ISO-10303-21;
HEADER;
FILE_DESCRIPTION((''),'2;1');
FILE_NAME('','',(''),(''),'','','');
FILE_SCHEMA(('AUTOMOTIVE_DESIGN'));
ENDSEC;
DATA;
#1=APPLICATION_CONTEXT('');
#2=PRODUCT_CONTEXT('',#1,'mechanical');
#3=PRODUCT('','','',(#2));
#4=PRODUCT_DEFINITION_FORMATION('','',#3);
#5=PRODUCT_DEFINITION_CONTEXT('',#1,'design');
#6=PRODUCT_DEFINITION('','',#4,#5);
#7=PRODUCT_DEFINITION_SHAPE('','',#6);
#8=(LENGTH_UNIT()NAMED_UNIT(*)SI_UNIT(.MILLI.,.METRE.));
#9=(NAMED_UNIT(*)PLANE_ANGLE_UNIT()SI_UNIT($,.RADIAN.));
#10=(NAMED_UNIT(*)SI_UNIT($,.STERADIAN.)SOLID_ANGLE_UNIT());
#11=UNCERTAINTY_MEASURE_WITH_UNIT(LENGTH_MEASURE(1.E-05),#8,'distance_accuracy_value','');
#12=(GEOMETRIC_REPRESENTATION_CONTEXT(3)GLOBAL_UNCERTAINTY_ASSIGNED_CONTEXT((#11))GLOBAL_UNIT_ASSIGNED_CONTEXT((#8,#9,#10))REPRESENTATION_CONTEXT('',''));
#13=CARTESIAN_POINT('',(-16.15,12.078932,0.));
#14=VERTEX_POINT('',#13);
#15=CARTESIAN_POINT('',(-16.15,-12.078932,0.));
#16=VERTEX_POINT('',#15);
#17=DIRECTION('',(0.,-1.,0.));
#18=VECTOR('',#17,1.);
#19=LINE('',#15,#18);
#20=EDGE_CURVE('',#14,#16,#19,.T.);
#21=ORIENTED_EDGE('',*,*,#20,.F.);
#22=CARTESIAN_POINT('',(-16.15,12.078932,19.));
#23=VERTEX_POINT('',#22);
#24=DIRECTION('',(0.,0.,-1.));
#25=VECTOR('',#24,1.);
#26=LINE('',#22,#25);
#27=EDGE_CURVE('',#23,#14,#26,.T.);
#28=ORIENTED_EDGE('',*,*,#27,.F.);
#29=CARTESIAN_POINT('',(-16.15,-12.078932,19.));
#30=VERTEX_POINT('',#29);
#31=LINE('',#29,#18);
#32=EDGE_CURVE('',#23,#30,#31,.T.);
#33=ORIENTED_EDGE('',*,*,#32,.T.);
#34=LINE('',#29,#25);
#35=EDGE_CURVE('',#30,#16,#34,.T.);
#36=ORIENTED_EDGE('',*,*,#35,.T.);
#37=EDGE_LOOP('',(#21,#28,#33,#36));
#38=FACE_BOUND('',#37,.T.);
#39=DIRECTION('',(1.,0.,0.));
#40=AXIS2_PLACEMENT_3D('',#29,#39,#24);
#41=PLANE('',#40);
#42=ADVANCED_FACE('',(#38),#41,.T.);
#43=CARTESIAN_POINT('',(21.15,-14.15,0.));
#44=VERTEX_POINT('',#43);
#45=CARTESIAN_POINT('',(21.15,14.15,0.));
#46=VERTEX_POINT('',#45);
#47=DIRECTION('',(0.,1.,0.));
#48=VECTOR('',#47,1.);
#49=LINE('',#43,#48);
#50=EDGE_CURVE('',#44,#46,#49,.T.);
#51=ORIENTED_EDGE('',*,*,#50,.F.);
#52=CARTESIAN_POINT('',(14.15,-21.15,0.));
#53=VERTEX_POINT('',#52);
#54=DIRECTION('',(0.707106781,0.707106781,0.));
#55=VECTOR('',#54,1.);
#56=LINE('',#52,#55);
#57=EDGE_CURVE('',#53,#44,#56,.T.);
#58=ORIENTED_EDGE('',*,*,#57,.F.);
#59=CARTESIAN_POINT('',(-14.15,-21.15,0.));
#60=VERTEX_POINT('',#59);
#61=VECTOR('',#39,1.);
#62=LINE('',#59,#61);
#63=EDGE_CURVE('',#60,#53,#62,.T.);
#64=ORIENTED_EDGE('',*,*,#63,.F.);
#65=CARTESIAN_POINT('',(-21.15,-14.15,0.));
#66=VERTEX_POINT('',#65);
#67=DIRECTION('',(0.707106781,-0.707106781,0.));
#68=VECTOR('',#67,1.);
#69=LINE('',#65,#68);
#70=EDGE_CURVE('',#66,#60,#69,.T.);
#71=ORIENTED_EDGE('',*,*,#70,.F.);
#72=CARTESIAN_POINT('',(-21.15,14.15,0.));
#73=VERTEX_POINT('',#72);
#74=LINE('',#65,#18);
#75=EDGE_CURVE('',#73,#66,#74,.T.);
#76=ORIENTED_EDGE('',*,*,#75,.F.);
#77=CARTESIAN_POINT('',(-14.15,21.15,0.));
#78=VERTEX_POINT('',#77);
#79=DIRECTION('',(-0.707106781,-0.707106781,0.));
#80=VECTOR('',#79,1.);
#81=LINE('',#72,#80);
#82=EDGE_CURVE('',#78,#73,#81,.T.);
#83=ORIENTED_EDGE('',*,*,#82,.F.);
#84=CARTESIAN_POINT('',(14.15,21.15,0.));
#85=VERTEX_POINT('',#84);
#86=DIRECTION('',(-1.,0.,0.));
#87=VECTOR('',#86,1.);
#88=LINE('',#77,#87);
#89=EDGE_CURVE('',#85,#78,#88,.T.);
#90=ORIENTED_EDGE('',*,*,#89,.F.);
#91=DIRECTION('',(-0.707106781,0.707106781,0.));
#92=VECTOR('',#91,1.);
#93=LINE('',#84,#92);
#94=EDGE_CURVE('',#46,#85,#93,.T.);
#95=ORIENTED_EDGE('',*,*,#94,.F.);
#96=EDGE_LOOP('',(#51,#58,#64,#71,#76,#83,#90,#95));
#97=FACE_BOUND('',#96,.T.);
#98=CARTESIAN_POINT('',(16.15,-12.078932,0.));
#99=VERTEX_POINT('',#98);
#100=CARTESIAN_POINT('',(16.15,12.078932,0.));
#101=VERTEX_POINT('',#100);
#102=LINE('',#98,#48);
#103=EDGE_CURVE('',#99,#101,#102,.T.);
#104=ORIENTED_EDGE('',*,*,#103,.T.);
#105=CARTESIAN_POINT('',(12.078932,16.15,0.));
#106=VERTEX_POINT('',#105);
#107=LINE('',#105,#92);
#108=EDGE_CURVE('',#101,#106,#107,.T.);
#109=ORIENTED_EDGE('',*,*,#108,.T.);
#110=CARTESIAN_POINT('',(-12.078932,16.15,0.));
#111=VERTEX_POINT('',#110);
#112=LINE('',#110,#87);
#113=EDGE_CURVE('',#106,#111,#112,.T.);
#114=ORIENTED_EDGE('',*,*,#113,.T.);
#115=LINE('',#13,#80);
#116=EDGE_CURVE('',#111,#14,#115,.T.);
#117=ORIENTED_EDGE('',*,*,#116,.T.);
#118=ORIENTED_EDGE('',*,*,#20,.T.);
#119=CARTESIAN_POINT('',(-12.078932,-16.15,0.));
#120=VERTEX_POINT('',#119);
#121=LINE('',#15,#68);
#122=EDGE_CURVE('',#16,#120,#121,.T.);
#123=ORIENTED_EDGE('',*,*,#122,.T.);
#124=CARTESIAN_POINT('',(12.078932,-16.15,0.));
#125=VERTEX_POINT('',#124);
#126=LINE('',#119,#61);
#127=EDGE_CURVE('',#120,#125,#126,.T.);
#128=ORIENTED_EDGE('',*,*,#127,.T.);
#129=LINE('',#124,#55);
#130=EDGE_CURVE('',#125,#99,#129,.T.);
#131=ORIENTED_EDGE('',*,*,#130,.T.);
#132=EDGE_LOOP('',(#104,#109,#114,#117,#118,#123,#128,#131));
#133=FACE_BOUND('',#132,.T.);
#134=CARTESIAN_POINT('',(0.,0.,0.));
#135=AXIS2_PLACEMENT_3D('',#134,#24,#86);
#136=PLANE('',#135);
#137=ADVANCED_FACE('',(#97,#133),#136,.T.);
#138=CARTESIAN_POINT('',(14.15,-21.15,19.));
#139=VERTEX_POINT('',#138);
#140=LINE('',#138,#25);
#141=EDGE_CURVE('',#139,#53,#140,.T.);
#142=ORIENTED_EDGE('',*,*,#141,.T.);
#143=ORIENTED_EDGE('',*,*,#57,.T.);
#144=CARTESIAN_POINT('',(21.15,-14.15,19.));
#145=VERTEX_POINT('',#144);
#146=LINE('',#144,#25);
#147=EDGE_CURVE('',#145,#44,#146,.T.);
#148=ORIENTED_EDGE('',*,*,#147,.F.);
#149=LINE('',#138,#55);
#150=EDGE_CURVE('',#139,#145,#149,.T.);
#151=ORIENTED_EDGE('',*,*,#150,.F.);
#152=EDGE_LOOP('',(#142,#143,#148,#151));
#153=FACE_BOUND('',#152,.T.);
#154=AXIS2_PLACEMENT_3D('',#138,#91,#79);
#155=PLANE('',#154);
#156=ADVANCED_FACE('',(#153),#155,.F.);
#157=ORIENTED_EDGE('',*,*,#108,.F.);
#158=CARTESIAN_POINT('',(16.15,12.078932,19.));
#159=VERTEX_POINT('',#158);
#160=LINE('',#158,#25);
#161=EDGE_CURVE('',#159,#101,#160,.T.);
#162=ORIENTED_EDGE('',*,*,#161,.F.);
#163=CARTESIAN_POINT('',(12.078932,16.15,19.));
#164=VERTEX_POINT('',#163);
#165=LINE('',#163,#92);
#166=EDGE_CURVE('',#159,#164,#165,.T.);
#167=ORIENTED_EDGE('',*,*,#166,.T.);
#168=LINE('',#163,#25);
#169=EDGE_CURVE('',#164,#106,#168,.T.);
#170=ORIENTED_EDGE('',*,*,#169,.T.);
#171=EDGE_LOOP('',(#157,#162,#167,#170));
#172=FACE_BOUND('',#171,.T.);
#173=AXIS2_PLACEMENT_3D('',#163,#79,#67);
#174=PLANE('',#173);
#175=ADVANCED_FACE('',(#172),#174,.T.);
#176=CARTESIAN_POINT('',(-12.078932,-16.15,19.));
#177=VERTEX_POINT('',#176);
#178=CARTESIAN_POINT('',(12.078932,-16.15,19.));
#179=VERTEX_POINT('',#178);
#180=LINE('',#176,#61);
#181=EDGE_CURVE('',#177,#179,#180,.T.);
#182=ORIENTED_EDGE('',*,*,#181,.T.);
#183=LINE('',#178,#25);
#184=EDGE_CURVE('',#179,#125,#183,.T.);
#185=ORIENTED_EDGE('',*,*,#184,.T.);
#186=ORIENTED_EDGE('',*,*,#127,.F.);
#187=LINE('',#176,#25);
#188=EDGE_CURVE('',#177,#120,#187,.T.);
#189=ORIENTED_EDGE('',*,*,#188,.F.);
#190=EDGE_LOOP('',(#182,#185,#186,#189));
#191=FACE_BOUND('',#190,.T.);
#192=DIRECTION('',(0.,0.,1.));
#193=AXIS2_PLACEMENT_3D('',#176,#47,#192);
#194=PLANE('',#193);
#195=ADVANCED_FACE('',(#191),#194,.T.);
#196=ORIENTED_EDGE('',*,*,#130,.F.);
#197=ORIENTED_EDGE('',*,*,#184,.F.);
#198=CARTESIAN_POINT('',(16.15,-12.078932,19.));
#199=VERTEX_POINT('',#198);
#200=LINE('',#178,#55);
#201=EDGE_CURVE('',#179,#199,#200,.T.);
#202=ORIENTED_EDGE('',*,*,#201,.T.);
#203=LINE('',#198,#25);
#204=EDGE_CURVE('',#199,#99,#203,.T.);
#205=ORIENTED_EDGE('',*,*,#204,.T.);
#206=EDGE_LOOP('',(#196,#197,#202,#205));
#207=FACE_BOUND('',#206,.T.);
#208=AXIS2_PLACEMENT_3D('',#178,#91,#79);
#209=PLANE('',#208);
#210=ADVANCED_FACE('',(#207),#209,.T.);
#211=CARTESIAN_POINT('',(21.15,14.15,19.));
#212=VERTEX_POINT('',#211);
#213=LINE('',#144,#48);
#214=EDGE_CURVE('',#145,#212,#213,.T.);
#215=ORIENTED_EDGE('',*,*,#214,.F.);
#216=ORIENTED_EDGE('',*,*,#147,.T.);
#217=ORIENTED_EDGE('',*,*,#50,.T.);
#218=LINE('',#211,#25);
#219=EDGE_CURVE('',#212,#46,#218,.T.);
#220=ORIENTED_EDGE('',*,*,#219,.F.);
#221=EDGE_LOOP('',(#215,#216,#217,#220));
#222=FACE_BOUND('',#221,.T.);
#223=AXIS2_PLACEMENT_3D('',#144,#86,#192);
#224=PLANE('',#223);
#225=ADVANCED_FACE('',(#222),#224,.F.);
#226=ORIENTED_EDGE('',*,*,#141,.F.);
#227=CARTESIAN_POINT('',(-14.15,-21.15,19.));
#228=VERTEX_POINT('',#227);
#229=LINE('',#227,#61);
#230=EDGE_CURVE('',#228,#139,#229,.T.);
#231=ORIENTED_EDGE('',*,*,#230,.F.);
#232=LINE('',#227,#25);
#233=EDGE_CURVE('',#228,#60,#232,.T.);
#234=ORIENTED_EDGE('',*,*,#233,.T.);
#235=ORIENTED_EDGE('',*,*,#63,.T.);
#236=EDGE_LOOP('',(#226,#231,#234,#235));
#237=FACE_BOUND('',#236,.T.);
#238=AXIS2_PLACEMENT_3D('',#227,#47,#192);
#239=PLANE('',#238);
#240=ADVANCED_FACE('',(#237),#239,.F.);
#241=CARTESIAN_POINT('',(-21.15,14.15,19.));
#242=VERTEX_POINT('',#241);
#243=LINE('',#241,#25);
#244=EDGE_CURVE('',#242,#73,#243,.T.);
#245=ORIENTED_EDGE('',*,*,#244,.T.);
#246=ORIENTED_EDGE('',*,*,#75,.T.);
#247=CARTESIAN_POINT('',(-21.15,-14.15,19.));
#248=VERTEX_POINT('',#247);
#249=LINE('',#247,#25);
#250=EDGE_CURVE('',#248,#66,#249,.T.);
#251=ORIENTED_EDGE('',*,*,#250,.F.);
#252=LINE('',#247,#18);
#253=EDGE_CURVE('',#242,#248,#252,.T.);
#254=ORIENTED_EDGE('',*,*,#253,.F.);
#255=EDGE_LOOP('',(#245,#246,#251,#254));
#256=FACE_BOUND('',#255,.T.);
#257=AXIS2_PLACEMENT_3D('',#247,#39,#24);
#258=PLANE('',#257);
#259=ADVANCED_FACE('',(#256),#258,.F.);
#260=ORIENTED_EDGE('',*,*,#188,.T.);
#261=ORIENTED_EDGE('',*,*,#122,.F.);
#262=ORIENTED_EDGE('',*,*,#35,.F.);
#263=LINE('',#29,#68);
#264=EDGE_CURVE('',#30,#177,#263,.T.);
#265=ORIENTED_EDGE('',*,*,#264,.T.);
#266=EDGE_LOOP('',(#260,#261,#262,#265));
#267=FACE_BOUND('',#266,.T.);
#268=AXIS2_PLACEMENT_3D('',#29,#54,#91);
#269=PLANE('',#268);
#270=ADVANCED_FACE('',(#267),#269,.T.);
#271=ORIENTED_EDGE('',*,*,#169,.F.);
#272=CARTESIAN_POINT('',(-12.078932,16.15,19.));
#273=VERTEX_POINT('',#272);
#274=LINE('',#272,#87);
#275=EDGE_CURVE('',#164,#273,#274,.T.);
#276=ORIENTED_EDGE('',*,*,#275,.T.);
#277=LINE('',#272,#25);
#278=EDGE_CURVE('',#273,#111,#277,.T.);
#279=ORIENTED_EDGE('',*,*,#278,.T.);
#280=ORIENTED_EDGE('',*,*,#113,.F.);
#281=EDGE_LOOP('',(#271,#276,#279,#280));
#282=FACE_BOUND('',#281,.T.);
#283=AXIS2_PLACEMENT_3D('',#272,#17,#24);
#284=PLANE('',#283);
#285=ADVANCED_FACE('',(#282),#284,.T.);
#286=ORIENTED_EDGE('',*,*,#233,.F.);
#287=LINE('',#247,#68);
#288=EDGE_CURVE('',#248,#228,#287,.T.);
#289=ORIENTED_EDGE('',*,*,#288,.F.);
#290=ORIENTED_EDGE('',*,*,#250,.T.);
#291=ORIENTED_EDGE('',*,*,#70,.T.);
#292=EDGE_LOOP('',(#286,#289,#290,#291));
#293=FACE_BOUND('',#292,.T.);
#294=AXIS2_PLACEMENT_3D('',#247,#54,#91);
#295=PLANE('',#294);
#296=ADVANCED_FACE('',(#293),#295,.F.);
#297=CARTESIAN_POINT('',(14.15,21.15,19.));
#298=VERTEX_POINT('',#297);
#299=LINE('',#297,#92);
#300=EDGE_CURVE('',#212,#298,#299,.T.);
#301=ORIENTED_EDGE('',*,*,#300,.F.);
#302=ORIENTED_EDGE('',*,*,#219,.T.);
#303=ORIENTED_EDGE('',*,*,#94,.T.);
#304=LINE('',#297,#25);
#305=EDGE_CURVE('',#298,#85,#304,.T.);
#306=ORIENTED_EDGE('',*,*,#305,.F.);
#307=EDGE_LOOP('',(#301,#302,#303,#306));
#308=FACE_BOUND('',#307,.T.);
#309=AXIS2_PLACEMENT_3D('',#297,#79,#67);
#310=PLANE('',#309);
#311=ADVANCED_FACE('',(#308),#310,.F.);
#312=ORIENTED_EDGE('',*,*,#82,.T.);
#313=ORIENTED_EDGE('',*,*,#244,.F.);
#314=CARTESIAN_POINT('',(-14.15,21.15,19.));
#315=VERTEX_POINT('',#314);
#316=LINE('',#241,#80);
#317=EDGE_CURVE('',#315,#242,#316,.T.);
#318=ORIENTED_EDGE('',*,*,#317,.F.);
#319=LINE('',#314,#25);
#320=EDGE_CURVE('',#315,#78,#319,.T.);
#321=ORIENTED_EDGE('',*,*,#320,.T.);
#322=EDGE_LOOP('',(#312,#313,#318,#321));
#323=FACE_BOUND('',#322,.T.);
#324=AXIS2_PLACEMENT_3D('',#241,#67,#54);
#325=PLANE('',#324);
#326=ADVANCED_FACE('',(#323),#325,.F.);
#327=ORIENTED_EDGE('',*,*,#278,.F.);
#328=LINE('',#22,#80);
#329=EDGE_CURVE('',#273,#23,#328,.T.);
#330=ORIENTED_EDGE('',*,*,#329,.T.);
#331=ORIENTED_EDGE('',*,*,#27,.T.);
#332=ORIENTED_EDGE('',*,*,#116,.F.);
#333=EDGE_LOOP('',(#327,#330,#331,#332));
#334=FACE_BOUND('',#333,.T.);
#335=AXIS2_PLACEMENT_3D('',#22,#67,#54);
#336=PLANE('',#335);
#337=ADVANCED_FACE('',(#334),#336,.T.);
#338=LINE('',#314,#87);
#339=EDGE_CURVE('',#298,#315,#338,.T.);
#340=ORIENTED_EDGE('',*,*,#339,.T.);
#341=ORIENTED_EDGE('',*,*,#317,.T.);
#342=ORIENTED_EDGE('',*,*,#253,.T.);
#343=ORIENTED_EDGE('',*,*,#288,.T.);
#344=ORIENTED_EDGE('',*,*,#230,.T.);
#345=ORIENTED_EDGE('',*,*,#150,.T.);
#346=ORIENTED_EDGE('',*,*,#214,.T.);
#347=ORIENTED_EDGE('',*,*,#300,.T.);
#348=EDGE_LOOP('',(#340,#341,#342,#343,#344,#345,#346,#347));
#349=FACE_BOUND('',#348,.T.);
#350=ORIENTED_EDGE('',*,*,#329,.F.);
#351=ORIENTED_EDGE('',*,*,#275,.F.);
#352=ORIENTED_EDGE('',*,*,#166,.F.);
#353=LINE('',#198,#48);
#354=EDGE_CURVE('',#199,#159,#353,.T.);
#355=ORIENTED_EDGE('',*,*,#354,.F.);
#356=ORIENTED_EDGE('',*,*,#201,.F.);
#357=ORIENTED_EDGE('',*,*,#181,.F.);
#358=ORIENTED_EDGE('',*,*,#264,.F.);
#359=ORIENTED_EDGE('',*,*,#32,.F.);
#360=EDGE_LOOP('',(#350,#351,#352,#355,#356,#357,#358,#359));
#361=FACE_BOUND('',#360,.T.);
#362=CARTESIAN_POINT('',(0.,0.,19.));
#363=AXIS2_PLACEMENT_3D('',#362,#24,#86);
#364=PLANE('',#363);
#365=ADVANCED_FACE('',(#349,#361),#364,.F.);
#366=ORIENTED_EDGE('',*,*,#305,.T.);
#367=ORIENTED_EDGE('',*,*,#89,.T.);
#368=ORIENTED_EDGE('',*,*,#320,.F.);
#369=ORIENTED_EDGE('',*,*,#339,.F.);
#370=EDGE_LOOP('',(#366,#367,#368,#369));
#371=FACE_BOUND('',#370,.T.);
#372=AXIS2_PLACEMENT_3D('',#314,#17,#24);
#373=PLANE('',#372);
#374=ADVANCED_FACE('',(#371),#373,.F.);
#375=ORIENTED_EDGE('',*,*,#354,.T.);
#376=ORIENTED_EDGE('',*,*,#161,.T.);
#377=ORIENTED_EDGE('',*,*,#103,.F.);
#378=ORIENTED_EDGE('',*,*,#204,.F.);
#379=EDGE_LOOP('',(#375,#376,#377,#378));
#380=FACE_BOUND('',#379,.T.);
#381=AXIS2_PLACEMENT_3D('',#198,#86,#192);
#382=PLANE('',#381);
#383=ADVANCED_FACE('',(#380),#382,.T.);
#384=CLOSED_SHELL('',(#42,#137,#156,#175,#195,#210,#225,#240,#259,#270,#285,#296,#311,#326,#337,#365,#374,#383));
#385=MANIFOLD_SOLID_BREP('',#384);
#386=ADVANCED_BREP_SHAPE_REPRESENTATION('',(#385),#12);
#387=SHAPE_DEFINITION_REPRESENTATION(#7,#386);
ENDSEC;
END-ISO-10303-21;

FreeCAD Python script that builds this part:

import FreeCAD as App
import Part
import Sketcher

V = App.Vector


def add_polygon(sketch, points):
    """Adds a closed chain of lines whose ends are joined by coincident constraints."""
    first, n = sketch.GeometryCount, len(points)
    for a, b in zip(points, points[1:] + points[:1]):
        sketch.addGeometry(Part.LineSegment(App.Vector(*a, 0), App.Vector(*b, 0)), False)
    for i in range(n):
        sketch.addConstraint(Sketcher.Constraint("Coincident", first + i, 2, first + (i + 1) % n, 1))

doc = App.newDocument("Part")
body = doc.addObject("PartDesign::Body", "Body")

# Sketch on XY plane
sketch1 = body.newObject("Sketcher::SketchObject", "Sketch")
sketch1.AttachmentSupport = (doc.getObject("XY_Plane"), [""])
sketch1.MapMode = "FlatFace"
add_polygon(sketch1, [(-14.15, 21.15), (-21.15, 14.15), (-21.15, -14.15), (-14.15, -21.15), (14.15, -21.15), (21.15, -14.15), (21.15, 14.15), (14.15, 21.15)])  # lines 0-7
add_polygon(sketch1, [(-12.078932, 16.15), (12.078932, 16.15), (16.15, 12.078932), (16.15, -12.078932), (12.078932, -16.15), (-12.078932, -16.15), (-16.15, -12.078932), (-16.15, 12.078932)])  # lines 8-15
sketch1.addConstraint(Sketcher.Constraint("Vertical", 1))
sketch1.addConstraint(Sketcher.Constraint("Horizontal", 3))
sketch1.addConstraint(Sketcher.Constraint("Vertical", 5))
sketch1.addConstraint(Sketcher.Constraint("Horizontal", 7))
sketch1.addConstraint(Sketcher.Constraint("Horizontal", 8))
sketch1.addConstraint(Sketcher.Constraint("Vertical", 10))
sketch1.addConstraint(Sketcher.Constraint("Horizontal", 12))
sketch1.addConstraint(Sketcher.Constraint("Vertical", 14))
sketch1.addConstraint(Sketcher.Constraint("Symmetric", 0, 2, 4, 2, -1, 1))
sketch1.addConstraint(Sketcher.Constraint("Symmetric", 2, 2, 6, 2, -1, 1))
sketch1.addConstraint(Sketcher.Constraint("Symmetric", 8, 2, 12, 2, -1, 1))
sketch1.addConstraint(Sketcher.Constraint("Symmetric", 9, 2, 13, 2, -1, 1))
sketch1.addConstraint(Sketcher.Constraint("Perpendicular", 0, 2))
sketch1.addConstraint(Sketcher.Constraint("Perpendicular", 2, 4))
sketch1.addConstraint(Sketcher.Constraint("Perpendicular", 4, 6))
sketch1.addConstraint(Sketcher.Constraint("Parallel", 6, 9))
sketch1.addConstraint(Sketcher.Constraint("Perpendicular", 9, 11))
sketch1.addConstraint(Sketcher.Constraint("Perpendicular", 13, 15))
sketch1.addConstraint(Sketcher.Constraint("Horizontal", 1, 2, 4, 2))
sketch1.addConstraint(Sketcher.Constraint("Horizontal", 10, 2, 13, 2))
sketch1.addConstraint(Sketcher.Constraint("Horizontal", 9, 2, 14, 2))
sketch1.addConstraint(Sketcher.Constraint("Vertical", 3, 2, 6, 2))
sketch1.addConstraint(Sketcher.Constraint("Equal", 7, 1))
sketch1.addConstraint(Sketcher.Constraint("Equal", 12, 10))
sketch1.addConstraint(Sketcher.Constraint("DistanceX", 3, 1, 3, 2, 28.3))
sketch1.addConstraint(Sketcher.Constraint("DistanceX", 1, 2, 2, 2, 7.0))
sketch1.addConstraint(Sketcher.Constraint("DistanceY", 8, 2, 6, 2, 5.0))
sketch1.addConstraint(Sketcher.Constraint("Distance", 9, 5.757359))
pad1 = body.newObject("PartDesign::Pad", "Pad")
pad1.Profile = sketch1
pad1.Length = 19

doc.recompute()
